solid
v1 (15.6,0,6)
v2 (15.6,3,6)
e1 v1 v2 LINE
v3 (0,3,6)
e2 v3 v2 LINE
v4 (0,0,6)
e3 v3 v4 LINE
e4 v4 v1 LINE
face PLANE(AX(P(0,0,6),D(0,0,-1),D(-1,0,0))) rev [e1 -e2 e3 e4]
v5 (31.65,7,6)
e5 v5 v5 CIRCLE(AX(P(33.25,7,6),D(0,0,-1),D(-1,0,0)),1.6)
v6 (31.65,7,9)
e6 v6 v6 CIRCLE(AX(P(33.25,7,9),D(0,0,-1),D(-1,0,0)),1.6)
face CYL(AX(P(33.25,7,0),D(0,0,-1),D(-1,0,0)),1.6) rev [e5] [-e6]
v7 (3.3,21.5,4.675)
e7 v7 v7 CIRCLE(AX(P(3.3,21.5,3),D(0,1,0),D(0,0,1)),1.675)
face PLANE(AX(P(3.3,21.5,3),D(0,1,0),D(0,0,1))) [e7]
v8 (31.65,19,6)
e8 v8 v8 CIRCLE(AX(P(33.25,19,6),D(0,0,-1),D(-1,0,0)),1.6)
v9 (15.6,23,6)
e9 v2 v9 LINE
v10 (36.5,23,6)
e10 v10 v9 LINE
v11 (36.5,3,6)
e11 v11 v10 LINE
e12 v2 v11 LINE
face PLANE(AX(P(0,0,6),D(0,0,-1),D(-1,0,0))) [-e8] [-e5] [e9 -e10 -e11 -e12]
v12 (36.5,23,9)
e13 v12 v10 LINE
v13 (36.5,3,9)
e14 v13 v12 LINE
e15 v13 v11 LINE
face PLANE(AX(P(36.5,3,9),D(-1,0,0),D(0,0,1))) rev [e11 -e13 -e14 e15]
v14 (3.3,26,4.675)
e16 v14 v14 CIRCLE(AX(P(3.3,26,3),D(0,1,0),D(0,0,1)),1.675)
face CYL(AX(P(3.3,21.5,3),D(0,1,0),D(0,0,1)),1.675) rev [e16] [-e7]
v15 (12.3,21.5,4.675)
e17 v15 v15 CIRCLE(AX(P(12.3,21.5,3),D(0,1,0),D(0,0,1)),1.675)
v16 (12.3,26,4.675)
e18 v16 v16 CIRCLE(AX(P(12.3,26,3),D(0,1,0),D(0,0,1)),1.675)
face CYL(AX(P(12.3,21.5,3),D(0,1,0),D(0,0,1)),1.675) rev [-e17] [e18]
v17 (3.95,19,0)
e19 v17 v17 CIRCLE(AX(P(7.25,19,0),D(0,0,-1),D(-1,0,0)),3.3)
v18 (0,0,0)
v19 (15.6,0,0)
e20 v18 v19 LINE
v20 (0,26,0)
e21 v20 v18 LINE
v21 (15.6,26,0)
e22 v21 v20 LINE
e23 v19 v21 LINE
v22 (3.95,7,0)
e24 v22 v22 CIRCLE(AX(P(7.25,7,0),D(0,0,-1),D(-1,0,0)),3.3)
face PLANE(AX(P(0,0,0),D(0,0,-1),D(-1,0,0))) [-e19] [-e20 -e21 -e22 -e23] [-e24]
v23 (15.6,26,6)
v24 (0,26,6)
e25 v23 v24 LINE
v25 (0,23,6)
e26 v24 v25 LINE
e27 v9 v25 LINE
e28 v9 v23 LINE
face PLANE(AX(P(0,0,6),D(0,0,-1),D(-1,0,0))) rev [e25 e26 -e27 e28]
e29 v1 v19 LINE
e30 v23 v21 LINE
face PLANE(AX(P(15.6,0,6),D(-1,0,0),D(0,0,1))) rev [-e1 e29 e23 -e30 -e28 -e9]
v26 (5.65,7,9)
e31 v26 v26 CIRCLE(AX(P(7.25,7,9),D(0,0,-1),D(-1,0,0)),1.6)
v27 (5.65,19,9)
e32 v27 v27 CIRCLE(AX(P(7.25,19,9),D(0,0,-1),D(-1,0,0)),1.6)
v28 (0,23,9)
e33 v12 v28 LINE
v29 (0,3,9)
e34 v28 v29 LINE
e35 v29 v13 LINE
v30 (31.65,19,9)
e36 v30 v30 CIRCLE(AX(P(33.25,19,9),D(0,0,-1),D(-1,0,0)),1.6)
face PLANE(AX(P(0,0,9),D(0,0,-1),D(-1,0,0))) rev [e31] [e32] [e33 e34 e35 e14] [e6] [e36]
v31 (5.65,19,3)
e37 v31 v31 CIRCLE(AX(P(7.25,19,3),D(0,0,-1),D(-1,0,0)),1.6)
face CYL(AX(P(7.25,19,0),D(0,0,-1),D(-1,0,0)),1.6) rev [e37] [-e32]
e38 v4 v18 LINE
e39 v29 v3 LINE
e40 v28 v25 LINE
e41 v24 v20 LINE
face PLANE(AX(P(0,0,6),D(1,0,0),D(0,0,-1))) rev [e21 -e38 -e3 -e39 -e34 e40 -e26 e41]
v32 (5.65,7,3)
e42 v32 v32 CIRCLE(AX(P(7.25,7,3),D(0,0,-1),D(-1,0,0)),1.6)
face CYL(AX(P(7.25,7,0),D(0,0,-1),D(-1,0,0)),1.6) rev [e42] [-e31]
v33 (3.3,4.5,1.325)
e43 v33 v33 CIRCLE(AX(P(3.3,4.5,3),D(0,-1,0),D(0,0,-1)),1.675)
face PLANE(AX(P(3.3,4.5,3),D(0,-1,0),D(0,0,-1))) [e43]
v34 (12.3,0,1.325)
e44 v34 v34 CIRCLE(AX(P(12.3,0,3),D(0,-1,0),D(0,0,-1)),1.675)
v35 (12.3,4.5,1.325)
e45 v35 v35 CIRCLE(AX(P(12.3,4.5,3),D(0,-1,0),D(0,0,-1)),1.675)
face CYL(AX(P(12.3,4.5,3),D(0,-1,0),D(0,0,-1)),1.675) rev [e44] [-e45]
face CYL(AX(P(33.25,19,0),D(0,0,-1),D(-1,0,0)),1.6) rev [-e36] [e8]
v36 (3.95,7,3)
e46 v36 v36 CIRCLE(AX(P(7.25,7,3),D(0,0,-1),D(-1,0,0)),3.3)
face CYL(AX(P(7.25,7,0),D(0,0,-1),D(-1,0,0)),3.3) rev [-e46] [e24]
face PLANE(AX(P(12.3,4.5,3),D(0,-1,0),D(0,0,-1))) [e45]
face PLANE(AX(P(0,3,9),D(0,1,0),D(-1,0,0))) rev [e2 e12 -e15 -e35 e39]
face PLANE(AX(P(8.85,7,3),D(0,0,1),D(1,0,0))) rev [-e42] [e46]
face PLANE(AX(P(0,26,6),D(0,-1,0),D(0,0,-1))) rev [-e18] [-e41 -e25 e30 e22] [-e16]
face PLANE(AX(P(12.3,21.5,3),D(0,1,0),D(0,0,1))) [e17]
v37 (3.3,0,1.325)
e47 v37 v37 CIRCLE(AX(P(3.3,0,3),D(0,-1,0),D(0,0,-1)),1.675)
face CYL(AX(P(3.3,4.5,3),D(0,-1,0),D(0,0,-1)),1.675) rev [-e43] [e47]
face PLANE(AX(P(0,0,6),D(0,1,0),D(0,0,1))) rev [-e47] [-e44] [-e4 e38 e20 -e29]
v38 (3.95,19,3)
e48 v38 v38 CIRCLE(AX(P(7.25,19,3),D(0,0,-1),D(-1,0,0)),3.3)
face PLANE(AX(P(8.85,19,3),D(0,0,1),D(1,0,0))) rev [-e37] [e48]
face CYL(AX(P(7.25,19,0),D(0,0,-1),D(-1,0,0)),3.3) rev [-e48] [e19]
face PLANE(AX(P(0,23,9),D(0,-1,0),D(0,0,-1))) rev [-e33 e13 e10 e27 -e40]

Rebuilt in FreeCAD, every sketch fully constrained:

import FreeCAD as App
import Part
import Sketcher
from FreeCAD import Vector


def add_polygon(sketch, points):
    """Adds a closed chain of lines whose ends are joined by coincident constraints."""
    first, n = sketch.GeometryCount, len(points)
    for a, b in zip(points, points[1:] + points[:1]):
        sketch.addGeometry(Part.LineSegment(App.Vector(*a, 0), App.Vector(*b, 0)), False)
    for i in range(n):
        sketch.addConstraint(Sketcher.Constraint("Coincident", first + i, 2, first + (i + 1) % n, 1))

doc = App.newDocument("Part")
body = doc.addObject("PartDesign::Body", "Body")

# Sketch on XY plane
sketch1 = body.newObject("Sketcher::SketchObject", "Sketch")
sketch1.AttachmentSupport = (doc.getObject("XY_Plane"), [""])
sketch1.MapMode = "FlatFace"
add_polygon(sketch1, [(0, 26), (0, 0), (15.6, 0), (15.6, 26)])  # lines 0-3
sketch1.addConstraint([
    Sketcher.Constraint("Vertical", 0),
    Sketcher.Constraint("Horizontal", 1),
    Sketcher.Constraint("Vertical", 2),
    Sketcher.Constraint("Horizontal", 3),
    Sketcher.Constraint("Coincident", 0, 2, -1, 1),
    Sketcher.Constraint("DistanceY", 0, 2, 0, 1, 26.0),
    Sketcher.Constraint("DistanceX", 1, 1, 1, 2, 15.6),
])
pad1 = body.newObject("PartDesign::Pad", "Pad")
pad1.Profile = sketch1
pad1.Length = 6

# Sketch on XZ plane
sketch2 = body.newObject("Sketcher::SketchObject", "Sketch001")
sketch2.AttachmentSupport = (doc.getObject("XZ_Plane"), [""])
sketch2.MapMode = "FlatFace"
sketch2.AttachmentOffset = App.Placement(Vector(0, 0, -26), App.Rotation())
sketch2.addGeometry([
    Part.Circle(Vector(3.3, 3, 0), Vector(0, 0, 1), 1.675),
    Part.Circle(Vector(12.3, 3, 0), Vector(0, 0, 1), 1.675),
], False)
sketch2.addConstraint([
    Sketcher.Constraint("Equal", 0, 1),
    Sketcher.Constraint("Horizontal", 0, 3, 1, 3),
    Sketcher.Constraint("Diameter", 0, 3.35),
    Sketcher.Constraint("DistanceY", -1, 1, 0, 3, 3.0),
    Sketcher.Constraint("DistanceX", 0, 3, 1, 3, 9.0),
    Sketcher.Constraint("DistanceX", -1, 1, 0, 3, 3.3),
])
pocket1 = body.newObject("PartDesign::Pocket", "Pocket")
pocket1.Profile = sketch2
pocket1.Length = 4.5
pocket1.Reversed = True

# Sketch on XZ plane
sketch3 = body.newObject("Sketcher::SketchObject", "Sketch002")
sketch3.AttachmentSupport = (doc.getObject("XZ_Plane"), [""])
sketch3.MapMode = "FlatFace"
sketch3.AttachmentOffset = App.Placement(Vector(0, 0, -4.5), App.Rotation())
sketch3.addGeometry([
    Part.Circle(Vector(12.3, 3, 0), Vector(0, 0, 1), 1.675),
    Part.Circle(Vector(3.3, 3, 0), Vector(0, 0, 1), 1.675),
], False)
sketch3.addConstraint([
    Sketcher.Constraint("Equal", 0, 1),
    Sketcher.Constraint("Horizontal", 0, 3, 1, 3),
    Sketcher.Constraint("Diameter", 0, 3.35),
    Sketcher.Constraint("DistanceY", -1, 1, 0, 3, 3.0),
    Sketcher.Constraint("DistanceX", 1, 3, 0, 3, 9.0),
    Sketcher.Constraint("DistanceX", -1, 1, 0, 3, 12.3),
])
pocket2 = body.newObject("PartDesign::Pocket", "Pocket001")
pocket2.Profile = sketch3
pocket2.Length = 4.5
pocket2.Reversed = True

# Sketch on XY plane
sketch4 = body.newObject("Sketcher::SketchObject", "Sketch003")
sketch4.AttachmentSupport = (doc.getObject("XY_Plane"), [""])
sketch4.MapMode = "FlatFace"
sketch4.AttachmentOffset = App.Placement(Vector(0, 0, 6), App.Rotation())
add_polygon(sketch4, [(0, 23), (0, 3), (36.5, 3), (36.5, 23)])  # lines 0-3
sketch4.addConstraint([
    Sketcher.Constraint("Vertical", 0),
    Sketcher.Constraint("Horizontal", 1),
    Sketcher.Constraint("Vertical", 2),
    Sketcher.Constraint("Horizontal", 3),
    Sketcher.Constraint("PointOnObject", 0, 2, -2),
    Sketcher.Constraint("DistanceY", 0, 2, 0, 1, 20.0),
    Sketcher.Constraint("DistanceX", 1, 1, 1, 2, 36.5),
    Sketcher.Constraint("DistanceY", -1, 1, 0, 2, 3.0),
])
pad2 = body.newObject("PartDesign::Pad", "Pad001")
pad2.Profile = sketch4
pad2.Length = 3

# Sketch on XY plane
sketch5 = body.newObject("Sketcher::SketchObject", "Sketch004")
sketch5.AttachmentSupport = (doc.getObject("XY_Plane"), [""])
sketch5.MapMode = "FlatFace"
sketch5.addGeometry([
    Part.Circle(Vector(33.25, 19, 0), Vector(0, 0, 1), 1.6),
    Part.Circle(Vector(7.25, 19, 0), Vector(0, 0, 1), 1.6),
    Part.Circle(Vector(7.25, 7, 0), Vector(0, 0, 1), 1.6),
    Part.Circle(Vector(33.25, 7, 0), Vector(0, 0, 1), 1.6),
], False)
sketch5.addConstraint([
    Sketcher.Constraint("Equal", 0, 1),
    Sketcher.Constraint("Equal", 1, 2),
    Sketcher.Constraint("Equal", 2, 3),
    Sketcher.Constraint("Horizontal", 0, 3, 1, 3),
    Sketcher.Constraint("Horizontal", 2, 3, 3, 3),
    Sketcher.Constraint("Vertical", 1, 3, 2, 3),
    Sketcher.Constraint("Vertical", 0, 3, 3, 3),
    Sketcher.Constraint("Diameter", 0, 3.2),
    Sketcher.Constraint("DistanceY", -1, 1, 0, 3, 19.0),
    Sketcher.Constraint("DistanceY", -1, 1, 2, 3, 7.0),
    Sketcher.Constraint("DistanceX", 1, 3, 0, 3, 26.0),
    Sketcher.Constraint("DistanceX", -1, 1, 0, 3, 33.25),
])
doc.recompute()
hole = body.newObject("PartDesign::Hole", "Hole")
hole.Profile = sketch5
hole.ThreadType = "None"
hole.Diameter = 3.2
hole.DepthType = "ThroughAll"
hole.HoleCutType = "Counterbore"
hole.HoleCutDiameter = 6.6
hole.HoleCutDepth = 3
hole.Reversed = True

doc.recompute()
